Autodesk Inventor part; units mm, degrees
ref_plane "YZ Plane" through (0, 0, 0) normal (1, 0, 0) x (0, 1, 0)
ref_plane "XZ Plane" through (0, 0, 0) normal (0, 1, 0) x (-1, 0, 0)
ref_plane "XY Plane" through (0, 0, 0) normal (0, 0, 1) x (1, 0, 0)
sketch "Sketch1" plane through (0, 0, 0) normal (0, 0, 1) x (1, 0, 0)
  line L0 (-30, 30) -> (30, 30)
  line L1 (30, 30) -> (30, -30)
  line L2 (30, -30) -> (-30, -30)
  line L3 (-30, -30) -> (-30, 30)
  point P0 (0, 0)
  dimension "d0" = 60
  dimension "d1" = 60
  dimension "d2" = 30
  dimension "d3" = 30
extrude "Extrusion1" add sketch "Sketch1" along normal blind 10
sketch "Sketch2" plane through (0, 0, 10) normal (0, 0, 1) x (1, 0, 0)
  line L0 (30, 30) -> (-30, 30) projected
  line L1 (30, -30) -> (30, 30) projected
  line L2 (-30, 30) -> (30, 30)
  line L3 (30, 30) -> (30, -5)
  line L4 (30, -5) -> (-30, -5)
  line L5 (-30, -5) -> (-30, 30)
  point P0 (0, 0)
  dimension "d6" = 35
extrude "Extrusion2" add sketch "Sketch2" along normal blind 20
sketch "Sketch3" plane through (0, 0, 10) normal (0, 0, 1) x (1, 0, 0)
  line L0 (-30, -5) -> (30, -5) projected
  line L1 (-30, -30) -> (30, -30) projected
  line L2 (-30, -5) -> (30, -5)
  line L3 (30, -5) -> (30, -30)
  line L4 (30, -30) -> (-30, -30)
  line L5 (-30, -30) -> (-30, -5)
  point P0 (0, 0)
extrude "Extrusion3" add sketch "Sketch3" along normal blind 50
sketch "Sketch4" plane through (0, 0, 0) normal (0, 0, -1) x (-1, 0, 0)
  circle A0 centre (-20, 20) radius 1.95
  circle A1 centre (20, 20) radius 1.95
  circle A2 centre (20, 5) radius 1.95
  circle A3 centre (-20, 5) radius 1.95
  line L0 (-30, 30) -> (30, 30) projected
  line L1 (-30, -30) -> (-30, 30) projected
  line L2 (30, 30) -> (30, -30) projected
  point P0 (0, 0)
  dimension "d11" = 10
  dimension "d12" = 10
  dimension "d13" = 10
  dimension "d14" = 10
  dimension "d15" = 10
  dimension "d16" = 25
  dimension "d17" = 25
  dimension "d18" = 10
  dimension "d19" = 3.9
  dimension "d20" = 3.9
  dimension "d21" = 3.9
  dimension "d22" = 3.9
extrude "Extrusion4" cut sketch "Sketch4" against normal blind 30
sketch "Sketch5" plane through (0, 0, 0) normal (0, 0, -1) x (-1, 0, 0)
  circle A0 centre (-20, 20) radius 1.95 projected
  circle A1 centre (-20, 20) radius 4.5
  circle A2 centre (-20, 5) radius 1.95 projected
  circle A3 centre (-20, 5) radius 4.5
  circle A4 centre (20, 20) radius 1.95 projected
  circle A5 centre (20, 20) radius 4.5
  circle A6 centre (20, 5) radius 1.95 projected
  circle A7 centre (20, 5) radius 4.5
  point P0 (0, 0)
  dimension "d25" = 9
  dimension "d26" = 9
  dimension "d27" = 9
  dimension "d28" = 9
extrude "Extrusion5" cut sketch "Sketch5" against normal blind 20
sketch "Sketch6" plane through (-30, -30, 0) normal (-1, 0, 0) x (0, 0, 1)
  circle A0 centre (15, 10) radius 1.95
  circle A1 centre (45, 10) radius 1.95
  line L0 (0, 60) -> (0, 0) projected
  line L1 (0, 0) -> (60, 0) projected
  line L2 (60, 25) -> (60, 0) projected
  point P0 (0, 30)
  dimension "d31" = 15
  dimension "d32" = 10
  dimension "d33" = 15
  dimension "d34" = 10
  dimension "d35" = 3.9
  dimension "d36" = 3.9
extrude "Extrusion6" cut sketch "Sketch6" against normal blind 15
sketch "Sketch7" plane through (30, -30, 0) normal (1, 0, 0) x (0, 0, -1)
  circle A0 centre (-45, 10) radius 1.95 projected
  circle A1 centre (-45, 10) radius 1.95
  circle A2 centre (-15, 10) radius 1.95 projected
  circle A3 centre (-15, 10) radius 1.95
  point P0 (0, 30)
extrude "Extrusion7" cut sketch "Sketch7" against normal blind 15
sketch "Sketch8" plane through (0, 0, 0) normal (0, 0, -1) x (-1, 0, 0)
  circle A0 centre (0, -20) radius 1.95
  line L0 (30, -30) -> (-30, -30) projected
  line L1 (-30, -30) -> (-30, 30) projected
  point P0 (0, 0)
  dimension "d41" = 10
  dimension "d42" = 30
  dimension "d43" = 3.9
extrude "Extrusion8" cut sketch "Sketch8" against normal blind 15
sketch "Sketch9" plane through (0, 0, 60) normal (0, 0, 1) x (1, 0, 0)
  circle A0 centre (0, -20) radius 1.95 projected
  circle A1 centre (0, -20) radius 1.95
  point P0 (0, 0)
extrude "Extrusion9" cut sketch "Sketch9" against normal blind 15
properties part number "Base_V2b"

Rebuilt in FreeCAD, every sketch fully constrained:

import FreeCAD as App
import Part
import Sketcher
from FreeCAD import Vector
Q = App.Units.Quantity


def add_polygon(sketch, points):
    """Adds a closed chain of lines whose ends are joined by coincident constraints."""
    first, n = sketch.GeometryCount, len(points)
    for a, b in zip(points, points[1:] + points[:1]):
        sketch.addGeometry(Part.LineSegment(App.Vector(*a, 0), App.Vector(*b, 0)), False)
    for i in range(n):
        sketch.addConstraint(Sketcher.Constraint("Coincident", first + i, 2, first + (i + 1) % n, 1))

doc = App.newDocument("Part")
body = doc.addObject("PartDesign::Body", "Body")

# Sketch on XY plane
sketch1 = doc.addObject("Sketcher::SketchObject", "Sketch")
body.addObject(sketch1)
sketch1.AttachmentSupport = (doc.XY_Plane, [""])
sketch1.MapMode = "FlatFace"
add_polygon(sketch1, [(30, 30), (-30, 30), (-30, -30), (30, -30)])  # lines 0-3
sketch1.addConstraint([
    Sketcher.Constraint("Horizontal", 0),
    Sketcher.Constraint("Vertical", 1),
    Sketcher.Constraint("Horizontal", 2),
    Sketcher.Constraint("Vertical", 3),
    Sketcher.Constraint("Symmetric", 0, 2, 2, 2, -1, 1),
    Sketcher.Constraint("Equal", 2, 1),
    Sketcher.Constraint("DistanceX", 0, 2, 0, 1, Q("60 mm")),
])
pad1 = doc.addObject("PartDesign::Pad", "Pad")
body.addObject(pad1)
pad1.Profile = sketch1
pad1.Length = 10

# Sketch on XY plane
sketch2 = doc.addObject("Sketcher::SketchObject", "Sketch001")
body.addObject(sketch2)
sketch2.AttachmentSupport = (doc.XY_Plane, [""])
sketch2.MapMode = "FlatFace"
sketch2.AttachmentOffset = App.Placement(Vector(0, 0, 10), App.Rotation())
add_polygon(sketch2, [(30, -5), (30, 30), (-30, 30), (-30, -5)])  # lines 0-3
sketch2.addConstraint([
    Sketcher.Constraint("Vertical", 0),
    Sketcher.Constraint("Horizontal", 1),
    Sketcher.Constraint("Vertical", 2),
    Sketcher.Constraint("Horizontal", 3),
    Sketcher.Constraint("DistanceY", 0, 1, 0, 2, Q("35 mm")),
    Sketcher.Constraint("DistanceX", 1, 2, 1, 1, Q("60 mm")),
    Sketcher.Constraint("DistanceX", -1, 1, 0, 2, Q("30 mm")),
    Sketcher.Constraint("DistanceY", -1, 1, 0, 2, Q("30 mm")),
])
pad2 = doc.addObject("PartDesign::Pad", "Pad001")
body.addObject(pad2)
pad2.Profile = sketch2
pad2.Length = 20

# Sketch on XY plane
sketch3 = doc.addObject("Sketcher::SketchObject", "Sketch002")
body.addObject(sketch3)
sketch3.AttachmentSupport = (doc.XY_Plane, [""])
sketch3.MapMode = "FlatFace"
sketch3.AttachmentOffset = App.Placement(Vector(0, 0, 10), App.Rotation())
add_polygon(sketch3, [(30, -5), (-30, -5), (-30, -30), (30, -30)])  # lines 0-3
sketch3.addConstraint([
    Sketcher.Constraint("Horizontal", 0),
    Sketcher.Constraint("Vertical", 1),
    Sketcher.Constraint("Horizontal", 2),
    Sketcher.Constraint("Vertical", 3),
    Sketcher.Constraint("DistanceX", 0, 2, 0, 1, Q("60 mm")),
    Sketcher.Constraint("DistanceY", 1, 2, 1, 1, Q("25 mm")),
    Sketcher.Constraint("DistanceX", 0, 2, -1, 1, Q("30 mm")),
    Sketcher.Constraint("DistanceY", 0, 2, -1, 1, Q("5 mm")),
])
pad3 = doc.addObject("PartDesign::Pad", "Pad002")
body.addObject(pad3)
pad3.Profile = sketch3
pad3.Length = 50

# Sketch on XY plane
sketch4 = doc.addObject("Sketcher::SketchObject", "Sketch003")
body.addObject(sketch4)
sketch4.AttachmentSupport = (doc.XY_Plane, [""])
sketch4.MapMode = "FlatFace"
sketch4.addGeometry([
    Part.Circle(Vector(20, 20, 0), Vector(0, 0, 1), 1.9),
    Part.Circle(Vector(-20, 20, 0), Vector(0, 0, 1), 1.9),
    Part.Circle(Vector(-20, 5, 0), Vector(0, 0, 1), 1.9),
    Part.Circle(Vector(20, 5, 0), Vector(0, 0, 1), 1.9),
], False)
sketch4.addConstraint([
    Sketcher.Constraint("Equal", 0, 1),
    Sketcher.Constraint("Equal", 1, 2),
    Sketcher.Constraint("Equal", 2, 3),
    Sketcher.Constraint("Symmetric", 0, 3, 1, 3, -2),
    Sketcher.Constraint("Symmetric", 2, 3, 3, 3, -2),
    Sketcher.Constraint("Vertical", 1, 3, 2, 3),
    Sketcher.Constraint("Diameter", 0, Q("3.9 mm")),
    Sketcher.Constraint("DistanceX", -1, 1, 0, 3, Q("20 mm")),
    Sketcher.Constraint("DistanceY", -1, 1, 0, 3, Q("20 mm")),
    Sketcher.Constraint("DistanceY", -1, 1, 2, 3, Q("5 mm")),
])
pocket1 = doc.addObject("PartDesign::Pocket", "Pocket")
body.addObject(pocket1)
pocket1.Profile = sketch4
pocket1.Length = 30
pocket1.Reversed = True

# Sketch on XY plane
sketch5 = doc.addObject("Sketcher::SketchObject", "Sketch004")
body.addObject(sketch5)
sketch5.AttachmentSupport = (doc.XY_Plane, [""])
sketch5.MapMode = "FlatFace"
sketch5.addGeometry([
    Part.Circle(Vector(20, 20, 0), Vector(0, 0, 1), 4.5),  # 0
    Part.Circle(Vector(20, 20, 0), Vector(0, 0, 1), 1.9),  # 1
    Part.Circle(Vector(20, 5, 0), Vector(0, 0, 1), 4.5),  # 2
    Part.Circle(Vector(20, 5, 0), Vector(0, 0, 1), 1.9),  # 3
    Part.Circle(Vector(-20, 20, 0), Vector(0, 0, 1), 4.5),  # 4
    Part.Circle(Vector(-20, 20, 0), Vector(0, 0, 1), 1.9),  # 5
    Part.Circle(Vector(-20, 5, 0), Vector(0, 0, 1), 4.5),  # 6
    Part.Circle(Vector(-20, 5, 0), Vector(0, 0, 1), 1.9),  # 7
], False)
sketch5.addConstraint([
    Sketcher.Constraint("Coincident", 1, 3, 0, 3),
    Sketcher.Constraint("Coincident", 3, 3, 2, 3),
    Sketcher.Constraint("Coincident", 5, 3, 4, 3),
    Sketcher.Constraint("Coincident", 7, 3, 6, 3),
    Sketcher.Constraint("Equal", 0, 2),
    Sketcher.Constraint("Equal", 1, 3),
    Sketcher.Constraint("Equal", 2, 4),
    Sketcher.Constraint("Equal", 3, 5),
    Sketcher.Constraint("Equal", 4, 6),
    Sketcher.Constraint("Equal", 5, 7),
    Sketcher.Constraint("Symmetric", 0, 3, 4, 3, -2),
    Sketcher.Constraint("Symmetric", 2, 3, 6, 3, -2),
    Sketcher.Constraint("Vertical", 1, 3, 2, 3),
    Sketcher.Constraint("Diameter", 0, Q("9 mm")),
    Sketcher.Constraint("Diameter", 1, Q("3.9 mm")),
    Sketcher.Constraint("DistanceX", -1, 1, 0, 3, Q("20 mm")),
    Sketcher.Constraint("DistanceY", -1, 1, 0, 3, Q("20 mm")),
    Sketcher.Constraint("DistanceY", -1, 1, 2, 3, Q("5 mm")),
])
pocket2 = doc.addObject("PartDesign::Pocket", "Pocket001")
body.addObject(pocket2)
pocket2.Profile = sketch5
pocket2.Length = 20
pocket2.Reversed = True

# Sketch on YZ plane
sketch6 = doc.addObject("Sketcher::SketchObject", "Sketch005")
body.addObject(sketch6)
sketch6.AttachmentSupport = (doc.YZ_Plane, [""])
sketch6.MapMode = "FlatFace"
sketch6.AttachmentOffset = App.Placement(Vector(0, 0, -30), App.Rotation())
sketch6.addGeometry([
    Part.Circle(Vector(-20, 15, 0), Vector(0, 0, 1), 1.9),
    Part.Circle(Vector(-20, 45, 0), Vector(0, 0, 1), 1.9),
], False)
sketch6.addConstraint([
    Sketcher.Constraint("Equal", 0, 1),
    Sketcher.Constraint("Vertical", 0, 3, 1, 3),
    Sketcher.Constraint("Diameter", 0, Q("3.9 mm")),
    Sketcher.Constraint("DistanceY", -1, 1, 0, 3, Q("15 mm")),
    Sketcher.Constraint("DistanceX", 0, 3, -1, 1, Q("20 mm")),
    Sketcher.Constraint("DistanceY", -1, 1, 1, 3, Q("45 mm")),
])
pocket3 = doc.addObject("PartDesign::Pocket", "Pocket002")
body.addObject(pocket3)
pocket3.Profile = sketch6
pocket3.Length = 15
pocket3.Reversed = True

# Sketch on YZ plane
sketch7 = doc.addObject("Sketcher::SketchObject", "Sketch006")
body.addObject(sketch7)
sketch7.AttachmentSupport = (doc.YZ_Plane, [""])
sketch7.MapMode = "FlatFace"
sketch7.AttachmentOffset = App.Placement(Vector(0, 0, 30), App.Rotation())
sketch7.addGeometry([
    Part.Circle(Vector(-20, 45, 0), Vector(0, 0, 1), 1.9),
    Part.Circle(Vector(-20, 15, 0), Vector(0, 0, 1), 1.9),
], False)
sketch7.addConstraint([
    Sketcher.Constraint("Equal", 0, 1),
    Sketcher.Constraint("Vertical", 0, 3, 1, 3),
    Sketcher.Constraint("Diameter", 0, Q("3.9 mm")),
    Sketcher.Constraint("DistanceX", 0, 3, -1, 1, Q("20 mm")),
    Sketcher.Constraint("DistanceY", -1, 1, 0, 3, Q("45 mm")),
    Sketcher.Constraint("DistanceY", -1, 1, 1, 3, Q("15 mm")),
])
pocket4 = doc.addObject("PartDesign::Pocket", "Pocket003")
body.addObject(pocket4)
pocket4.Profile = sketch7
pocket4.Length = 15

# Sketch on XY plane
sketch8 = doc.addObject("Sketcher::SketchObject", "Sketch007")
body.addObject(sketch8)
sketch8.AttachmentSupport = (doc.XY_Plane, [""])
sketch8.MapMode = "FlatFace"
sketch8.addGeometry(Part.Circle(Vector(0, -20, 0), Vector(0, 0, 1), 1.9), False)
sketch8.addConstraint([
    Sketcher.Constraint("PointOnObject", 0, 3, -2),
    Sketcher.Constraint("Diameter", 0, Q("3.9 mm")),
    Sketcher.Constraint("DistanceY", 0, 3, -1, 1, Q("20 mm")),
])
pocket5 = doc.addObject("PartDesign::Pocket", "Pocket004")
body.addObject(pocket5)
pocket5.Profile = sketch8
pocket5.Length = 15
pocket5.Reversed = True

# Sketch on XY plane
sketch9 = doc.addObject("Sketcher::SketchObject", "Sketch008")
body.addObject(sketch9)
sketch9.AttachmentSupport = (doc.XY_Plane, [""])
sketch9.MapMode = "FlatFace"
sketch9.AttachmentOffset = App.Placement(Vector(0, 0, 60), App.Rotation())
sketch9.addGeometry(Part.Circle(Vector(0, -20, 0), Vector(0, 0, 1), 1.9), False)
sketch9.addConstraint([
    Sketcher.Constraint("PointOnObject", 0, 3, -2),
    Sketcher.Constraint("Diameter", 0, Q("3.9 mm")),
    Sketcher.Constraint("DistanceY", 0, 3, -1, 1, Q("20 mm")),
])
pocket6 = doc.addObject("PartDesign::Pocket", "Pocket005")
body.addObject(pocket6)
pocket6.Profile = sketch9
pocket6.Length = 15

doc.recompute()
